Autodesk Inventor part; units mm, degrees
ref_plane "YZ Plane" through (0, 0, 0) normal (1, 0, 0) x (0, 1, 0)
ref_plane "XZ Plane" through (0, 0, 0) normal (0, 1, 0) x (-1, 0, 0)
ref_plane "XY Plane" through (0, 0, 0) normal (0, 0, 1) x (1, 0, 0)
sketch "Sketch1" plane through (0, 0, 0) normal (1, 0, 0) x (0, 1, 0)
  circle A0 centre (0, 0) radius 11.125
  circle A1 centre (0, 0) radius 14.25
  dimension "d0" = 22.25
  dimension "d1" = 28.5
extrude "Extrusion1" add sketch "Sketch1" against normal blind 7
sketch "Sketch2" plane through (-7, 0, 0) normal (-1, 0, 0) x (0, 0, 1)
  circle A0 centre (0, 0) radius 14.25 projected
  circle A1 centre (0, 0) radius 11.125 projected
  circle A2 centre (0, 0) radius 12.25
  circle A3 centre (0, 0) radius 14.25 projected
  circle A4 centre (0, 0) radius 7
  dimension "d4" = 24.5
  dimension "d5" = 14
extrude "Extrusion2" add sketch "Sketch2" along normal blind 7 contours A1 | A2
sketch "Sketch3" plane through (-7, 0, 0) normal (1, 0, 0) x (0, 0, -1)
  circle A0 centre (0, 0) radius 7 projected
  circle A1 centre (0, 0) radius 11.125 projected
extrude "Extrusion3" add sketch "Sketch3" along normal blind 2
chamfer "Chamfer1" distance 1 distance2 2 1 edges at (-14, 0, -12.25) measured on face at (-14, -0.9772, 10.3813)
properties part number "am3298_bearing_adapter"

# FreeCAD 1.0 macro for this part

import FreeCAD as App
import Part
import Sketcher
Q = App.Units.Quantity


def edges_at(feature, points):
    """Names of the edges that pass closest to the given points."""
    edges = feature.Shape.Edges
    near = lambda p: min(range(len(edges)), key=lambda i: edges[i].distToShape(Part.Vertex(*p))[0])
    return sorted({f"Edge{near(p) + 1}" for p in points})

doc = App.newDocument("Part")
body = doc.addObject("PartDesign::Body", "Body")

sketch1 = body.newObject("Sketcher::SketchObject", "Sketch")
sketch1.AttachmentSupport = (doc.getObject("YZ_Plane"), [""])
sketch1.MapMode = "FlatFace"
sketch1.addGeometry([
    Part.Circle(App.Vector(0, 0, 0), App.Vector(0, 0, 1), 14),
    Part.Circle(App.Vector(0, 0, 0), App.Vector(0, 0, 1), 11),
], False)
sketch1.addConstraint([
    Sketcher.Constraint("Coincident", 0, 3, -1, 1),
    Sketcher.Constraint("Coincident", 1, 3, -1, 1),
    Sketcher.Constraint("Diameter", 0, Q("28.5 mm")),
    Sketcher.Constraint("Diameter", 1, Q("22.25 mm")),
])
pad1 = body.newObject("PartDesign::Pad", "Pad")
pad1.Profile = sketch1
pad1.Length = 7
pad1.Reversed = True

sketch2 = body.newObject("Sketcher::SketchObject", "Sketch001")
sketch2.AttachmentSupport = (doc.getObject("YZ_Plane"), [""])
sketch2.MapMode = "FlatFace"
sketch2.AttachmentOffset = App.Placement(App.Vector(0, 0, -7), App.Rotation())
sketch2.addGeometry([
    Part.Circle(App.Vector(0, 0, 0), App.Vector(0, 0, 1), 12),
    Part.Circle(App.Vector(0, 0, 0), App.Vector(0, 0, 1), 7),
], False)
sketch2.addConstraint([
    Sketcher.Constraint("Coincident", 0, 3, -1, 1),
    Sketcher.Constraint("Coincident", 1, 3, -1, 1),
    Sketcher.Constraint("Diameter", 1, Q("14 mm")),
    Sketcher.Constraint("Diameter", 0, Q("24.5 mm")),
])
pad2 = body.newObject("PartDesign::Pad", "Pad001")
pad2.Profile = sketch2
pad2.Length = 7
pad2.Reversed = True

sketch3 = body.newObject("Sketcher::SketchObject", "Sketch002")
sketch3.AttachmentSupport = (doc.getObject("YZ_Plane"), [""])
sketch3.MapMode = "FlatFace"
sketch3.AttachmentOffset = App.Placement(App.Vector(0, 0, -7), App.Rotation())
sketch3.addGeometry([
    Part.Circle(App.Vector(0, 0, 0), App.Vector(0, 0, 1), 11),
    Part.Circle(App.Vector(0, 0, 0), App.Vector(0, 0, 1), 7),
], False)
sketch3.addConstraint([
    Sketcher.Constraint("Coincident", 0, 3, -1, 1),
    Sketcher.Constraint("Coincident", 1, 3, -1, 1),
    Sketcher.Constraint("Diameter", 1, Q("14 mm")),
    Sketcher.Constraint("Diameter", 0, Q("22.25 mm")),
])
pad3 = body.newObject("PartDesign::Pad", "Pad002")
pad3.Profile = sketch3
pad3.Length = 2
doc.recompute()

chamfer = body.newObject("PartDesign::Chamfer", "Chamfer")
chamfer.Base = (pad3, edges_at(pad3, [(-14, 0, -12.25)]))
chamfer.ChamferType = "Two distances"
chamfer.Size = 1
chamfer.Size2 = 2
chamfer.FlipDirection = True

doc.recompute()
